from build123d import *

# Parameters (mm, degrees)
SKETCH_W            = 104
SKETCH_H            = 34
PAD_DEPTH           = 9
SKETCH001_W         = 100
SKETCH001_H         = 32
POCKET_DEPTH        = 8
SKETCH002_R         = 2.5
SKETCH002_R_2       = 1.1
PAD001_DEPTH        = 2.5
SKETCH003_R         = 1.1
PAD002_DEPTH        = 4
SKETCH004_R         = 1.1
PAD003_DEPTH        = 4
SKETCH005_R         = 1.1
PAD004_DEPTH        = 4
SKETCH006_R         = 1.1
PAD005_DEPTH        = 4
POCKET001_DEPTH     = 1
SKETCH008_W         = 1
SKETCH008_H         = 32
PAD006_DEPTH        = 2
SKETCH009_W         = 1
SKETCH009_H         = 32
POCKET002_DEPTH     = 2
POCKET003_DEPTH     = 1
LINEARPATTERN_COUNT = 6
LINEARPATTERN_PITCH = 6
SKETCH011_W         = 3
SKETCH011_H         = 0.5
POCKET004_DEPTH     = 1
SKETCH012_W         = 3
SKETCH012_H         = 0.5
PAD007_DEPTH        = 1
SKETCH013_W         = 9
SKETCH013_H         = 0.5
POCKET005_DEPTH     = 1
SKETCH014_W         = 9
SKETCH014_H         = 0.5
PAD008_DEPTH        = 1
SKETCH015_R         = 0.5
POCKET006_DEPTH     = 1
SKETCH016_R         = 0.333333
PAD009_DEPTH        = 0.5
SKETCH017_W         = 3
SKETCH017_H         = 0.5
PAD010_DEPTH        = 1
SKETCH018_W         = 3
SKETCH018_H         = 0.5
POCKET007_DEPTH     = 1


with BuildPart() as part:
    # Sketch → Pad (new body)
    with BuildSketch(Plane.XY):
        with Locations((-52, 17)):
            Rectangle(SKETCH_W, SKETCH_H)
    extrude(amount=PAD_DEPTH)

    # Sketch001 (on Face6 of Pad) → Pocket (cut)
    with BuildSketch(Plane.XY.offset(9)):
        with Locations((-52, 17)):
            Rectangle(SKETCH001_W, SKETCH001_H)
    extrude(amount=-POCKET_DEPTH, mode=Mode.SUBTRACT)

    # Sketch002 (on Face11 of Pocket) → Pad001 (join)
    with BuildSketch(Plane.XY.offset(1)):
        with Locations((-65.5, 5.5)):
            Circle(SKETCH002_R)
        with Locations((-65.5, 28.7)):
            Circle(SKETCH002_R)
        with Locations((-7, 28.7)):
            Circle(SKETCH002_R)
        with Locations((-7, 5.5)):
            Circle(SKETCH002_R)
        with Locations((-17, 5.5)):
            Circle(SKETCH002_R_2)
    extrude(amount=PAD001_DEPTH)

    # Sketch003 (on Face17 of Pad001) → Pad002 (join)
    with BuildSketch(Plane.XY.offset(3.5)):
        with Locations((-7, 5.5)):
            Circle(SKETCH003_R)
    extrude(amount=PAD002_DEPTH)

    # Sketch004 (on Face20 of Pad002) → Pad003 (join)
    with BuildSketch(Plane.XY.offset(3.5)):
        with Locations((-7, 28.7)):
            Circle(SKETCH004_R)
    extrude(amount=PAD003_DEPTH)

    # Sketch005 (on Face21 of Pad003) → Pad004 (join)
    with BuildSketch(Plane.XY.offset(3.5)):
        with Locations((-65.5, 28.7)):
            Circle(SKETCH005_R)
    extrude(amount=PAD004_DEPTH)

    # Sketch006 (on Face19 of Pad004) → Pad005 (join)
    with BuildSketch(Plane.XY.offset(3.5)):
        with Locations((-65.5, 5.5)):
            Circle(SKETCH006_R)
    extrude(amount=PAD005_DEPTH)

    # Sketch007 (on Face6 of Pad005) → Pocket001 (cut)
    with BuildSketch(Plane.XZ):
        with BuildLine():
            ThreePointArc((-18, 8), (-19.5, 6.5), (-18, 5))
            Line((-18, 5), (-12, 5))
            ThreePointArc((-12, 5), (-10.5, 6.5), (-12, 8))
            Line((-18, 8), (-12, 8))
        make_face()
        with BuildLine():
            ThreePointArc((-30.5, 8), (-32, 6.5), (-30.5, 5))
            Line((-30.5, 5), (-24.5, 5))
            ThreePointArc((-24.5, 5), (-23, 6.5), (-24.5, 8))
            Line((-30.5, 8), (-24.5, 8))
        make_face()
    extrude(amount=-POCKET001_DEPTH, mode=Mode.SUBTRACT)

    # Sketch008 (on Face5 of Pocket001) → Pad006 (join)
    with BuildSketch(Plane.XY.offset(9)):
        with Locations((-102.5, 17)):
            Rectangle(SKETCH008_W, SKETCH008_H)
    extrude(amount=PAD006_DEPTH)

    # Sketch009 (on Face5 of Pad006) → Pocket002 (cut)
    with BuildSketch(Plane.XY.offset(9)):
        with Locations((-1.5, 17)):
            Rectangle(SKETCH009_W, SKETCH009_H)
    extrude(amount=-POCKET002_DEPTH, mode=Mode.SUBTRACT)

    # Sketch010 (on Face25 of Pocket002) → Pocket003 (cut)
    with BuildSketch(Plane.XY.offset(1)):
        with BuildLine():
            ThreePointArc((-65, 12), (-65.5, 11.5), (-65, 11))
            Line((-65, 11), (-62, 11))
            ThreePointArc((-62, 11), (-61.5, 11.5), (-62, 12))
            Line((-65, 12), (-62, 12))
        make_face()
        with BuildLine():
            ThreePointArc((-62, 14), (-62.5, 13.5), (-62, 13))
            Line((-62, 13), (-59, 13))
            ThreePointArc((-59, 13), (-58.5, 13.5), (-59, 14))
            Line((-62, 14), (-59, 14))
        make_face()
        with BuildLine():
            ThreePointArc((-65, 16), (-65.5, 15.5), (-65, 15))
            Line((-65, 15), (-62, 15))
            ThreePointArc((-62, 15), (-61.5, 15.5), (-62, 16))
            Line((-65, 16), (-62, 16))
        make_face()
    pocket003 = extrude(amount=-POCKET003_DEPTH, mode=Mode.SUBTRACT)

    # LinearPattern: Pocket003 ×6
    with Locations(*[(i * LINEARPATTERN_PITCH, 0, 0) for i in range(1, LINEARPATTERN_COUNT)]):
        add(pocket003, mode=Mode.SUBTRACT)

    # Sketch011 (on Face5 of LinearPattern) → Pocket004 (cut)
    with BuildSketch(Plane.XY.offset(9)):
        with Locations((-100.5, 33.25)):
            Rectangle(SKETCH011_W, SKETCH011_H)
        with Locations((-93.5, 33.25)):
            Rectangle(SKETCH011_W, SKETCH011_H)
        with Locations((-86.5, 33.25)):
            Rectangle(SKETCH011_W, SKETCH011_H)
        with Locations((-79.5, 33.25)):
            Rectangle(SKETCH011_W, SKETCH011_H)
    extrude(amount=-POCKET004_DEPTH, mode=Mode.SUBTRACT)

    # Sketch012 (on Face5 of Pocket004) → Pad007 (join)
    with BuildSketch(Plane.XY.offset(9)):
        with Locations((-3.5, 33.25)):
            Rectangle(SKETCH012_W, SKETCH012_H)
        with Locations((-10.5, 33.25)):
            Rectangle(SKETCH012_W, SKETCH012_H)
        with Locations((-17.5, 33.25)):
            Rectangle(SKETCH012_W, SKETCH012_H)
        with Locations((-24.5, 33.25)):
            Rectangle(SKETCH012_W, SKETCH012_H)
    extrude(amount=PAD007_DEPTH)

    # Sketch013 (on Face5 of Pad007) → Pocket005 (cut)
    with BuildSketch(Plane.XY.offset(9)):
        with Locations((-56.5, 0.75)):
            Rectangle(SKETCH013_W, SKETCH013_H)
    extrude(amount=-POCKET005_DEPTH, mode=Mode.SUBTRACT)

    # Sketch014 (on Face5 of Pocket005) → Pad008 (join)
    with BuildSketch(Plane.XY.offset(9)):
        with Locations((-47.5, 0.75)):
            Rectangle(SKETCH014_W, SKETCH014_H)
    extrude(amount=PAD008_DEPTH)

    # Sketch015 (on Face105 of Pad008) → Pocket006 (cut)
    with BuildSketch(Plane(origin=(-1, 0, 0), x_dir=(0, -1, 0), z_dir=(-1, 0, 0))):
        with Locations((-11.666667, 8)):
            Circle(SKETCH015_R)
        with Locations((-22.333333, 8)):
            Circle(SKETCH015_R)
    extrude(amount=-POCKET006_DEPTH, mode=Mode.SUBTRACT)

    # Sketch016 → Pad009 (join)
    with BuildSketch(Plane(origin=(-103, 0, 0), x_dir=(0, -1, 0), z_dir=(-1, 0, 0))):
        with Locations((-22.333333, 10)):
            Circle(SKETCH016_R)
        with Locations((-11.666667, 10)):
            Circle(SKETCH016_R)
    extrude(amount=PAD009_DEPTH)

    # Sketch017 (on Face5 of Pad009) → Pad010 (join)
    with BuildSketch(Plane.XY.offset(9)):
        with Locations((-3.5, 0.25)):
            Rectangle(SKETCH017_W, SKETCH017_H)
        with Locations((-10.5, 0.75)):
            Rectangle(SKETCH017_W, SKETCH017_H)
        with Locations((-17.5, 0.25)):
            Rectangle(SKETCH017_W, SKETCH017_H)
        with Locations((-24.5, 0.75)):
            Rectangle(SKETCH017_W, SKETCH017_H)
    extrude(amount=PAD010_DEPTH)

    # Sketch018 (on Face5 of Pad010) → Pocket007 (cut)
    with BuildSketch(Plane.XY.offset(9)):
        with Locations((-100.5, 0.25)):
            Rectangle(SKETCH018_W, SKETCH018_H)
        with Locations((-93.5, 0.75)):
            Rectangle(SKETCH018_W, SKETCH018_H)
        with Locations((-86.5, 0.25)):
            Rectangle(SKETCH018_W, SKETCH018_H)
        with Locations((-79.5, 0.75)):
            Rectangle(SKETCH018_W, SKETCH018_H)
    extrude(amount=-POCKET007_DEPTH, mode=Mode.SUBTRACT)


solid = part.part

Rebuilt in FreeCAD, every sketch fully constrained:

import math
import FreeCAD as App
import Part
import Sketcher
Q = App.Units.Quantity


def add_polygon(sketch, points):
    """Adds a closed chain of lines whose ends are joined by coincident constraints."""
    first, n = sketch.GeometryCount, len(points)
    for a, b in zip(points, points[1:] + points[:1]):
        sketch.addGeometry(Part.LineSegment(App.Vector(*a, 0), App.Vector(*b, 0)), False)
    for i in range(n):
        sketch.addConstraint(Sketcher.Constraint("Coincident", first + i, 2, first + (i + 1) % n, 1))

doc = App.newDocument("Part")
body = doc.addObject("PartDesign::Body", "Body")

# Sketch on XY plane
sketch1 = body.newObject("Sketcher::SketchObject", "Sketch")
sketch1.AttachmentSupport = (doc.getObject("XY_Plane"), [""])
sketch1.MapMode = "FlatFace"
add_polygon(sketch1, [(-104, 34), (-104, 0), (0, 0), (0, 34)])  # lines 0-3
sketch1.addConstraint([
    Sketcher.Constraint("Vertical", 0),
    Sketcher.Constraint("Horizontal", 1),
    Sketcher.Constraint("Vertical", 2),
    Sketcher.Constraint("Horizontal", 3),
    Sketcher.Constraint("Coincident", 1, 2, -1, 1),
    Sketcher.Constraint("DistanceX", 1, 1, 1, 2, Q("104 mm")),
    Sketcher.Constraint("DistanceY", 0, 2, 0, 1, Q("34 mm")),
])
pad1 = body.newObject("PartDesign::Pad", "Pad")
pad1.Profile = sketch1
pad1.Length = 9

# Sketch on XY plane
sketch2 = body.newObject("Sketcher::SketchObject", "Sketch001")
sketch2.AttachmentSupport = (doc.getObject("XY_Plane"), [""])
sketch2.MapMode = "FlatFace"
sketch2.AttachmentOffset = App.Placement(App.Vector(0, 0, 9), App.Rotation())
add_polygon(sketch2, [(-102, 33), (-102, 1), (-2, 1), (-2, 33)])  # lines 0-3
sketch2.addConstraint([
    Sketcher.Constraint("Vertical", 0),
    Sketcher.Constraint("Horizontal", 1),
    Sketcher.Constraint("Vertical", 2),
    Sketcher.Constraint("Horizontal", 3),
    Sketcher.Constraint("DistanceX", 1, 1, 1, 2, Q("100 mm")),
    Sketcher.Constraint("DistanceY", 0, 2, 0, 1, Q("32 mm")),
    Sketcher.Constraint("DistanceX", 0, 2, -1, 1, Q("102 mm")),
    Sketcher.Constraint("DistanceY", -1, 1, 0, 2, Q("1 mm")),
])
pocket1 = body.newObject("PartDesign::Pocket", "Pocket")
pocket1.Profile = sketch2
pocket1.Length = 8

# Sketch on XY plane
sketch3 = body.newObject("Sketcher::SketchObject", "Sketch002")
sketch3.AttachmentSupport = (doc.getObject("XY_Plane"), [""])
sketch3.MapMode = "FlatFace"
sketch3.AttachmentOffset = App.Placement(App.Vector(0, 0, 1), App.Rotation())
sketch3.addGeometry([
    Part.Circle(App.Vector(-65.5, 5.5, 0), App.Vector(0, 0, 1), 2.5),  # 0
    Part.Circle(App.Vector(-65.5, 28.7, 0), App.Vector(0, 0, 1), 2.5),  # 1
    Part.Circle(App.Vector(-7, 28.7, 0), App.Vector(0, 0, 1), 2.5),  # 2
    Part.Circle(App.Vector(-7, 5.5, 0), App.Vector(0, 0, 1), 2.5),  # 3
    Part.Circle(App.Vector(-17, 5.5, 0), App.Vector(0, 0, 1), 1.1),  # 4
], False)
sketch3.addConstraint([
    Sketcher.Constraint("Equal", 0, 1),
    Sketcher.Constraint("Equal", 1, 2),
    Sketcher.Constraint("Equal", 2, 3),
    Sketcher.Constraint("Horizontal", 1, 3, 2, 3),
    Sketcher.Constraint("Horizontal", 0, 3, 3, 3),
    Sketcher.Constraint("Horizontal", 3, 3, 4, 3),
    Sketcher.Constraint("Vertical", 0, 3, 1, 3),
    Sketcher.Constraint("Vertical", 2, 3, 3, 3),
    Sketcher.Constraint("Diameter", 0, Q("5 mm")),
    Sketcher.Constraint("Diameter", 4, Q("2.2 mm")),
    Sketcher.Constraint("DistanceX", 2, 3, -1, 1, Q("7 mm")),
    Sketcher.Constraint("DistanceX", 4, 3, -1, 1, Q("17 mm")),
    Sketcher.Constraint("DistanceX", 0, 3, -1, 1, Q("65.5 mm")),
    Sketcher.Constraint("DistanceY", -1, 1, 0, 3, Q("5.5 mm")),
    Sketcher.Constraint("DistanceY", -1, 1, 1, 3, Q("28.7 mm")),
])
pad2 = body.newObject("PartDesign::Pad", "Pad001")
pad2.Profile = sketch3
pad2.Length = 2.5

# Sketch on XY plane
sketch4 = body.newObject("Sketcher::SketchObject", "Sketch003")
sketch4.AttachmentSupport = (doc.getObject("XY_Plane"), [""])
sketch4.MapMode = "FlatFace"
sketch4.AttachmentOffset = App.Placement(App.Vector(0, 0, 3.5), App.Rotation())
sketch4.addGeometry(Part.Circle(App.Vector(-7, 5.5, 0), App.Vector(0, 0, 1), 1.1), False)
sketch4.addConstraint([
    Sketcher.Constraint("Diameter", 0, Q("2.2 mm")),
    Sketcher.Constraint("DistanceX", 0, 3, -1, 1, Q("7 mm")),
    Sketcher.Constraint("DistanceY", -1, 1, 0, 3, Q("5.5 mm")),
])
pad3 = body.newObject("PartDesign::Pad", "Pad002")
pad3.Profile = sketch4
pad3.Length = 4

# Sketch on XY plane
sketch5 = body.newObject("Sketcher::SketchObject", "Sketch004")
sketch5.AttachmentSupport = (doc.getObject("XY_Plane"), [""])
sketch5.MapMode = "FlatFace"
sketch5.AttachmentOffset = App.Placement(App.Vector(0, 0, 3.5), App.Rotation())
sketch5.addGeometry(Part.Circle(App.Vector(-7, 28.7, 0), App.Vector(0, 0, 1), 1.1), False)
sketch5.addConstraint([
    Sketcher.Constraint("Diameter", 0, Q("2.2 mm")),
    Sketcher.Constraint("DistanceX", 0, 3, -1, 1, Q("7 mm")),
    Sketcher.Constraint("DistanceY", -1, 1, 0, 3, Q("28.7 mm")),
])
pad4 = body.newObject("PartDesign::Pad", "Pad003")
pad4.Profile = sketch5
pad4.Length = 4

# Sketch on XY plane
sketch6 = body.newObject("Sketcher::SketchObject", "Sketch005")
sketch6.AttachmentSupport = (doc.getObject("XY_Plane"), [""])
sketch6.MapMode = "FlatFace"
sketch6.AttachmentOffset = App.Placement(App.Vector(0, 0, 3.5), App.Rotation())
sketch6.addGeometry(Part.Circle(App.Vector(-65.5, 28.7, 0), App.Vector(0, 0, 1), 1.1), False)
sketch6.addConstraint([
    Sketcher.Constraint("Diameter", 0, Q("2.2 mm")),
    Sketcher.Constraint("DistanceX", 0, 3, -1, 1, Q("65.5 mm")),
    Sketcher.Constraint("DistanceY", -1, 1, 0, 3, Q("28.7 mm")),
])
pad5 = body.newObject("PartDesign::Pad", "Pad004")
pad5.Profile = sketch6
pad5.Length = 4

# Sketch on XY plane
sketch7 = body.newObject("Sketcher::SketchObject", "Sketch006")
sketch7.AttachmentSupport = (doc.getObject("XY_Plane"), [""])
sketch7.MapMode = "FlatFace"
sketch7.AttachmentOffset = App.Placement(App.Vector(0, 0, 3.5), App.Rotation())
sketch7.addGeometry(Part.Circle(App.Vector(-65.5, 5.5, 0), App.Vector(0, 0, 1), 1.1), False)
sketch7.addConstraint([
    Sketcher.Constraint("Diameter", 0, Q("2.2 mm")),
    Sketcher.Constraint("DistanceX", 0, 3, -1, 1, Q("65.5 mm")),
    Sketcher.Constraint("DistanceY", -1, 1, 0, 3, Q("5.5 mm")),
])
pad6 = body.newObject("PartDesign::Pad", "Pad005")
pad6.Profile = sketch7
pad6.Length = 4

# Sketch on XZ plane
sketch8 = body.newObject("Sketcher::SketchObject", "Sketch007")
sketch8.AttachmentSupport = (doc.getObject("XZ_Plane"), [""])
sketch8.MapMode = "FlatFace"
sketch8.addGeometry([
    Part.ArcOfCircle(Part.Circle(App.Vector(-18, 6.5, 0), App.Vector(0, 0, 1), 1.5), math.radians(90), math.radians(270)),  # 0
    Part.LineSegment(App.Vector(-18, 5, 0), App.Vector(-12, 5, 0)),  # 1
    Part.ArcOfCircle(Part.Circle(App.Vector(-12, 6.5, 0), App.Vector(0, 0, 1), 1.5), math.radians(-90), math.radians(90)),  # 2
    Part.LineSegment(App.Vector(-12, 8, 0), App.Vector(-18, 8, 0)),  # 3
    Part.ArcOfCircle(Part.Circle(App.Vector(-30.5, 6.5, 0), App.Vector(0, 0, 1), 1.5), math.radians(90), math.radians(270)),  # 4
    Part.LineSegment(App.Vector(-30.5, 5, 0), App.Vector(-24.5, 5, 0)),  # 5
    Part.ArcOfCircle(Part.Circle(App.Vector(-24.5, 6.5, 0), App.Vector(0, 0, 1), 1.5), math.radians(-90), math.radians(90)),  # 6
    Part.LineSegment(App.Vector(-24.5, 8, 0), App.Vector(-30.5, 8, 0)),  # 7
], False)
sketch8.addConstraint([
    Sketcher.Constraint("Tangent", 0, 2, 1, 1),
    Sketcher.Constraint("Tangent", 1, 2, 2, 1),
    Sketcher.Constraint("Tangent", 2, 2, 3, 1),
    Sketcher.Constraint("Tangent", 3, 2, 0, 1),
    Sketcher.Constraint("Tangent", 4, 2, 5, 1),
    Sketcher.Constraint("Tangent", 5, 2, 6, 1),
    Sketcher.Constraint("Tangent", 6, 2, 7, 1),
    Sketcher.Constraint("Tangent", 7, 2, 4, 1),
    Sketcher.Constraint("Horizontal", 1),
    Sketcher.Constraint("Horizontal", 3),
    Sketcher.Constraint("Horizontal", 5),
    Sketcher.Constraint("Horizontal", 7),
    Sketcher.Constraint("Equal", 2, 4),
    Sketcher.Constraint("Horizontal", 2, 3, 4, 3),
    Sketcher.Constraint("Equal", 3, 5),
    Sketcher.Constraint("Radius", 0, Q("1.5 mm")),
    Sketcher.Constraint("DistanceX", 1, 1, 1, 2, Q("6 mm")),
    Sketcher.Constraint("DistanceX", 0, 3, -1, 1, Q("18 mm")),
    Sketcher.Constraint("DistanceY", -1, 1, 0, 2, Q("5 mm")),
    Sketcher.Constraint("DistanceX", 4, 3, -1, 1, Q("30.5 mm")),
])
pocket2 = body.newObject("PartDesign::Pocket", "Pocket001")
pocket2.Profile = sketch8
pocket2.Length = 1

# Sketch on XY plane
sketch9 = body.newObject("Sketcher::SketchObject", "Sketch008")
sketch9.AttachmentSupport = (doc.getObject("XY_Plane"), [""])
sketch9.MapMode = "FlatFace"
sketch9.AttachmentOffset = App.Placement(App.Vector(0, 0, 9), App.Rotation())
add_polygon(sketch9, [(-103, 33), (-103, 1), (-102, 1), (-102, 33)])  # lines 0-3
sketch9.addConstraint([
    Sketcher.Constraint("Vertical", 0),
    Sketcher.Constraint("Horizontal", 1),
    Sketcher.Constraint("Vertical", 2),
    Sketcher.Constraint("Horizontal", 3),
    Sketcher.Constraint("DistanceX", 1, 1, 1, 2, Q("1 mm")),
    Sketcher.Constraint("DistanceY", 0, 2, 0, 1, Q("32 mm")),
    Sketcher.Constraint("DistanceX", 0, 2, -1, 1, Q("103 mm")),
    Sketcher.Constraint("DistanceY", -1, 1, 0, 2, Q("1 mm")),
])
pad7 = body.newObject("PartDesign::Pad", "Pad006")
pad7.Profile = sketch9
pad7.Length = 2

# Sketch on XY plane
sketch10 = body.newObject("Sketcher::SketchObject", "Sketch009")
sketch10.AttachmentSupport = (doc.getObject("XY_Plane"), [""])
sketch10.MapMode = "FlatFace"
sketch10.AttachmentOffset = App.Placement(App.Vector(0, 0, 9), App.Rotation())
add_polygon(sketch10, [(-2, 33), (-2, 1), (-1, 1), (-1, 33)])  # lines 0-3
sketch10.addConstraint([
    Sketcher.Constraint("Vertical", 0),
    Sketcher.Constraint("Horizontal", 1),
    Sketcher.Constraint("Vertical", 2),
    Sketcher.Constraint("Horizontal", 3),
    Sketcher.Constraint("DistanceX", 1, 1, 1, 2, Q("1 mm")),
    Sketcher.Constraint("DistanceY", 0, 2, 0, 1, Q("32 mm")),
    Sketcher.Constraint("DistanceX", 0, 2, -1, 1, Q("2 mm")),
    Sketcher.Constraint("DistanceY", -1, 1, 0, 2, Q("1 mm")),
])
pocket3 = body.newObject("PartDesign::Pocket", "Pocket002")
pocket3.Profile = sketch10
pocket3.Length = 2

# Sketch on XY plane
sketch11 = body.newObject("Sketcher::SketchObject", "Sketch010")
sketch11.AttachmentSupport = (doc.getObject("XY_Plane"), [""])
sketch11.MapMode = "FlatFace"
sketch11.AttachmentOffset = App.Placement(App.Vector(0, 0, 1), App.Rotation())
sketch11.addGeometry([
    Part.ArcOfCircle(Part.Circle(App.Vector(-65, 11.5, 0), App.Vector(0, 0, 1), 0.5), math.radians(90), math.radians(270)),  # 0
    Part.LineSegment(App.Vector(-65, 11, 0), App.Vector(-62, 11, 0)),  # 1
    Part.ArcOfCircle(Part.Circle(App.Vector(-62, 11.5, 0), App.Vector(0, 0, 1), 0.5), math.radians(-90), math.radians(90)),  # 2
    Part.LineSegment(App.Vector(-62, 12, 0), App.Vector(-65, 12, 0)),  # 3
    Part.ArcOfCircle(Part.Circle(App.Vector(-62, 13.5, 0), App.Vector(0, 0, 1), 0.5), math.radians(90), math.radians(270)),  # 4
    Part.LineSegment(App.Vector(-62, 13, 0), App.Vector(-59, 13, 0)),  # 5
    Part.ArcOfCircle(Part.Circle(App.Vector(-59, 13.5, 0), App.Vector(0, 0, 1), 0.5), math.radians(-90), math.radians(90)),  # 6
    Part.LineSegment(App.Vector(-59, 14, 0), App.Vector(-62, 14, 0)),  # 7
    Part.ArcOfCircle(Part.Circle(App.Vector(-65, 15.5, 0), App.Vector(0, 0, 1), 0.5), math.radians(90), math.radians(270)),  # 8
    Part.LineSegment(App.Vector(-65, 15, 0), App.Vector(-62, 15, 0)),  # 9
    Part.ArcOfCircle(Part.Circle(App.Vector(-62, 15.5, 0), App.Vector(0, 0, 1), 0.5), math.radians(-90), math.radians(90)),  # 10
    Part.LineSegment(App.Vector(-62, 16, 0), App.Vector(-65, 16, 0)),  # 11
], False)
sketch11.addConstraint([
    Sketcher.Constraint("Tangent", 0, 2, 1, 1),
    Sketcher.Constraint("Tangent", 1, 2, 2, 1),
    Sketcher.Constraint("Tangent", 2, 2, 3, 1),
    Sketcher.Constraint("Tangent", 3, 2, 0, 1),
    Sketcher.Constraint("Tangent", 4, 2, 5, 1),
    Sketcher.Constraint("Tangent", 5, 2, 6, 1),
    Sketcher.Constraint("Tangent", 6, 2, 7, 1),
    Sketcher.Constraint("Tangent", 7, 2, 4, 1),
    Sketcher.Constraint("Tangent", 8, 2, 9, 1),
    Sketcher.Constraint("Tangent", 9, 2, 10, 1),
    Sketcher.Constraint("Tangent", 10, 2, 11, 1),
    Sketcher.Constraint("Tangent", 11, 2, 8, 1),
    Sketcher.Constraint("Horizontal", 1),
    Sketcher.Constraint("Horizontal", 3),
    Sketcher.Constraint("Horizontal", 5),
    Sketcher.Constraint("Horizontal", 7),
    Sketcher.Constraint("Horizontal", 9),
    Sketcher.Constraint("Horizontal", 11),
    Sketcher.Constraint("Equal", 2, 4),
    Sketcher.Constraint("Equal", 6, 8),
    Sketcher.Constraint("Vertical", 2, 3, 4, 3),
    Sketcher.Constraint("Vertical", 0, 3, 8, 3),
    Sketcher.Constraint("Vertical", 4, 3, 10, 3),
    Sketcher.Constraint("Equal", 3, 5),
    Sketcher.Constraint("Radius", 0, Q("0.5 mm")),
    Sketcher.Constraint("DistanceX", 1, 1, 1, 2, Q("3 mm")),
    Sketcher.Constraint("DistanceX", 0, 3, -1, 1, Q("65 mm")),
    Sketcher.Constraint("DistanceY", -1, 1, 0, 2, Q("11 mm")),
    Sketcher.Constraint("DistanceY", -1, 1, 4, 2, Q("13 mm")),
    Sketcher.Constraint("DistanceY", -1, 1, 8, 2, Q("15 mm")),
])
pocket4 = body.newObject("PartDesign::Pocket", "Pocket003")
pocket4.Profile = sketch11
pocket4.Length = 1
doc.recompute()

linearpattern = body.newObject("PartDesign::LinearPattern", "LinearPattern")
linearpattern.Originals = [pocket4]
linearpattern.Direction = (doc.getObject("X_Axis"), [""])
linearpattern.Mode = "offset"
linearpattern.Offset = 6
linearpattern.Occurrences = 6
body.Tip = linearpattern

# Sketch on XY plane
sketch12 = body.newObject("Sketcher::SketchObject", "Sketch011")
sketch12.AttachmentSupport = (doc.getObject("XY_Plane"), [""])
sketch12.MapMode = "FlatFace"
sketch12.AttachmentOffset = App.Placement(App.Vector(0, 0, 9), App.Rotation())
add_polygon(sketch12, [(-102, 33.5), (-102, 33), (-99, 33), (-99, 33.5)])  # lines 0-3
add_polygon(sketch12, [(-95, 33.5), (-95, 33), (-92, 33), (-92, 33.5)])  # lines 4-7
add_polygon(sketch12, [(-88, 33.5), (-88, 33), (-85, 33), (-85, 33.5)])  # lines 8-11
add_polygon(sketch12, [(-81, 33.5), (-81, 33), (-78, 33), (-78, 33.5)])  # lines 12-15
sketch12.addConstraint([
    Sketcher.Constraint("Vertical", 0),
    Sketcher.Constraint("Horizontal", 1),
    Sketcher.Constraint("Vertical", 2),
    Sketcher.Constraint("Horizontal", 3),
    Sketcher.Constraint("Vertical", 4),
    Sketcher.Constraint("Horizontal", 5),
    Sketcher.Constraint("Vertical", 6),
    Sketcher.Constraint("Horizontal", 7),
    Sketcher.Constraint("Vertical", 8),
    Sketcher.Constraint("Horizontal", 9),
    Sketcher.Constraint("Vertical", 10),
    Sketcher.Constraint("Horizontal", 11),
    Sketcher.Constraint("Vertical", 12),
    Sketcher.Constraint("Horizontal", 13),
    Sketcher.Constraint("Vertical", 14),
    Sketcher.Constraint("Horizontal", 15),
    Sketcher.Constraint("Horizontal", 1, 2, 4, 2),
    Sketcher.Constraint("Horizontal", 3, 2, 6, 2),
    Sketcher.Constraint("Horizontal", 5, 2, 8, 2),
    Sketcher.Constraint("Horizontal", 7, 2, 10, 2),
    Sketcher.Constraint("Horizontal", 9, 2, 12, 2),
    Sketcher.Constraint("Horizontal", 11, 2, 14, 2),
    Sketcher.Constraint("Equal", 3, 5),
    Sketcher.Constraint("Equal", 7, 9),
    Sketcher.Constraint("Equal", 11, 13),
    Sketcher.Constraint("DistanceX", 1, 1, 1, 2, Q("3 mm")),
    Sketcher.Constraint("DistanceY", 0, 2, 0, 1, Q("0.5 mm")),
    Sketcher.Constraint("DistanceX", 0, 2, -1, 1, Q("102 mm")),
    Sketcher.Constraint("DistanceY", -1, 1, 0, 2, Q("33 mm")),
    Sketcher.Constraint("DistanceX", 4, 2, -1, 1, Q("95 mm")),
    Sketcher.Constraint("DistanceX", 8, 2, -1, 1, Q("88 mm")),
    Sketcher.Constraint("DistanceX", 12, 2, -1, 1, Q("81 mm")),
])
pocket5 = body.newObject("PartDesign::Pocket", "Pocket004")
pocket5.Profile = sketch12
pocket5.Length = 1

# Sketch on XY plane
sketch13 = body.newObject("Sketcher::SketchObject", "Sketch012")
sketch13.AttachmentSupport = (doc.getObject("XY_Plane"), [""])
sketch13.MapMode = "FlatFace"
sketch13.AttachmentOffset = App.Placement(App.Vector(0, 0, 9), App.Rotation())
add_polygon(sketch13, [(-5, 33.5), (-5, 33), (-2, 33), (-2, 33.5)])  # lines 0-3
add_polygon(sketch13, [(-12, 33.5), (-12, 33), (-9, 33), (-9, 33.5)])  # lines 4-7
add_polygon(sketch13, [(-19, 33.5), (-19, 33), (-16, 33), (-16, 33.5)])  # lines 8-11
add_polygon(sketch13, [(-26, 33.5), (-26, 33), (-23, 33), (-23, 33.5)])  # lines 12-15
sketch13.addConstraint([
    Sketcher.Constraint("Vertical", 0),
    Sketcher.Constraint("Horizontal", 1),
    Sketcher.Constraint("Vertical", 2),
    Sketcher.Constraint("Horizontal", 3),
    Sketcher.Constraint("Vertical", 4),
    Sketcher.Constraint("Horizontal", 5),
    Sketcher.Constraint("Vertical", 6),
    Sketcher.Constraint("Horizontal", 7),
    Sketcher.Constraint("Vertical", 8),
    Sketcher.Constraint("Horizontal", 9),
    Sketcher.Constraint("Vertical", 10),
    Sketcher.Constraint("Horizontal", 11),
    Sketcher.Constraint("Vertical", 12),
    Sketcher.Constraint("Horizontal", 13),
    Sketcher.Constraint("Vertical", 14),
    Sketcher.Constraint("Horizontal", 15),
    Sketcher.Constraint("Horizontal", 1, 2, 4, 2),
    Sketcher.Constraint("Horizontal", 3, 2, 6, 2),
    Sketcher.Constraint("Horizontal", 5, 2, 8, 2),
    Sketcher.Constraint("Horizontal", 7, 2, 10, 2),
    Sketcher.Constraint("Horizontal", 9, 2, 12, 2),
    Sketcher.Constraint("Horizontal", 11, 2, 14, 2),
    Sketcher.Constraint("Equal", 3, 5),
    Sketcher.Constraint("Equal", 7, 9),
    Sketcher.Constraint("Equal", 11, 13),
    Sketcher.Constraint("DistanceX", 1, 1, 1, 2, Q("3 mm")),
    Sketcher.Constraint("DistanceY", 0, 2, 0, 1, Q("0.5 mm")),
    Sketcher.Constraint("DistanceX", 0, 2, -1, 1, Q("5 mm")),
    Sketcher.Constraint("DistanceY", -1, 1, 0, 2, Q("33 mm")),
    Sketcher.Constraint("DistanceX", 4, 2, -1, 1, Q("12 mm")),
    Sketcher.Constraint("DistanceX", 8, 2, -1, 1, Q("19 mm")),
    Sketcher.Constraint("DistanceX", 12, 2, -1, 1, Q("26 mm")),
])
pad8 = body.newObject("PartDesign::Pad", "Pad007")
pad8.Profile = sketch13
pad8.Length = 1

# Sketch on XY plane
sketch14 = body.newObject("Sketcher::SketchObject", "Sketch013")
sketch14.AttachmentSupport = (doc.getObject("XY_Plane"), [""])
sketch14.MapMode = "FlatFace"
sketch14.AttachmentOffset = App.Placement(App.Vector(0, 0, 9), App.Rotation())
add_polygon(sketch14, [(-61, 1), (-61, 0.5), (-52, 0.5), (-52, 1)])  # lines 0-3
sketch14.addConstraint([
    Sketcher.Constraint("Vertical", 0),
    Sketcher.Constraint("Horizontal", 1),
    Sketcher.Constraint("Vertical", 2),
    Sketcher.Constraint("Horizontal", 3),
    Sketcher.Constraint("DistanceX", 1, 1, 1, 2, Q("9 mm")),
    Sketcher.Constraint("DistanceY", 0, 2, 0, 1, Q("0.5 mm")),
    Sketcher.Constraint("DistanceX", 0, 2, -1, 1, Q("61 mm")),
    Sketcher.Constraint("DistanceY", -1, 1, 2, 2, Q("1 mm")),
])
pocket6 = body.newObject("PartDesign::Pocket", "Pocket005")
pocket6.Profile = sketch14
pocket6.Length = 1

# Sketch on XY plane
sketch15 = body.newObject("Sketcher::SketchObject", "Sketch014")
sketch15.AttachmentSupport = (doc.getObject("XY_Plane"), [""])
sketch15.MapMode = "FlatFace"
sketch15.AttachmentOffset = App.Placement(App.Vector(0, 0, 9), App.Rotation())
add_polygon(sketch15, [(-52, 1), (-52, 0.5), (-43, 0.5), (-43, 1)])  # lines 0-3
sketch15.addConstraint([
    Sketcher.Constraint("Vertical", 0),
    Sketcher.Constraint("Horizontal", 1),
    Sketcher.Constraint("Vertical", 2),
    Sketcher.Constraint("Horizontal", 3),
    Sketcher.Constraint("DistanceX", 1, 1, 1, 2, Q("9 mm")),
    Sketcher.Constraint("DistanceY", 0, 2, 0, 1, Q("0.5 mm")),
    Sketcher.Constraint("DistanceX", 0, 2, -1, 1, Q("52 mm")),
    Sketcher.Constraint("DistanceY", -1, 1, 2, 2, Q("1 mm")),
])
pad9 = body.newObject("PartDesign::Pad", "Pad008")
pad9.Profile = sketch15
pad9.Length = 1

# Sketch on YZ plane
sketch16 = body.newObject("Sketcher::SketchObject", "Sketch015")
sketch16.AttachmentSupport = (doc.getObject("YZ_Plane"), [""])
sketch16.MapMode = "FlatFace"
sketch16.AttachmentOffset = App.Placement(App.Vector(0, 0, -1), App.Rotation())
sketch16.addGeometry([
    Part.Circle(App.Vector(11.7, 8, 0), App.Vector(0, 0, 1), 0.5),
    Part.Circle(App.Vector(22.3, 8, 0), App.Vector(0, 0, 1), 0.5),
], False)
sketch16.addConstraint([
    Sketcher.Constraint("Equal", 0, 1),
    Sketcher.Constraint("Horizontal", 0, 3, 1, 3),
    Sketcher.Constraint("Diameter", 0, Q("1 mm")),
    Sketcher.Constraint("DistanceY", -1, 1, 0, 3, Q("8 mm")),
    Sketcher.Constraint("DistanceX", -1, 1, 0, 3, Q("11.666667 mm")),
    Sketcher.Constraint("DistanceX", -1, 1, 1, 3, Q("22.333333 mm")),
])
pocket7 = body.newObject("PartDesign::Pocket", "Pocket006")
pocket7.Profile = sketch16
pocket7.Length = 1
pocket7.Reversed = True

# Sketch on YZ plane
sketch17 = body.newObject("Sketcher::SketchObject", "Sketch016")
sketch17.AttachmentSupport = (doc.getObject("YZ_Plane"), [""])
sketch17.MapMode = "FlatFace"
sketch17.AttachmentOffset = App.Placement(App.Vector(0, 0, -103), App.Rotation())
sketch17.addGeometry([
    Part.Circle(App.Vector(22.33, 10, 0), App.Vector(0, 0, 1), 0.33),
    Part.Circle(App.Vector(11.67, 10, 0), App.Vector(0, 0, 1), 0.33),
], False)
sketch17.addConstraint([
    Sketcher.Constraint("Equal", 0, 1),
    Sketcher.Constraint("Horizontal", 0, 3, 1, 3),
    Sketcher.Constraint("DistanceY", -1, 1, 0, 3, Q("10 mm")),
    Sketcher.Constraint("Diameter", 0, Q("0.666666 mm")),
    Sketcher.Constraint("DistanceX", -1, 1, 0, 3, Q("22.333333 mm")),
    Sketcher.Constraint("DistanceX", -1, 1, 1, 3, Q("11.666667 mm")),
])
pad10 = body.newObject("PartDesign::Pad", "Pad009")
pad10.Profile = sketch17
pad10.Length = 0.5
pad10.Reversed = True

# Sketch on XY plane
sketch18 = body.newObject("Sketcher::SketchObject", "Sketch017")
sketch18.AttachmentSupport = (doc.getObject("XY_Plane"), [""])
sketch18.MapMode = "FlatFace"
sketch18.AttachmentOffset = App.Placement(App.Vector(0, 0, 9), App.Rotation())
add_polygon(sketch18, [(-5, 0.5), (-5, 0), (-2, 0), (-2, 0.5)])  # lines 0-3
add_polygon(sketch18, [(-12, 1), (-12, 0.5), (-9, 0.5), (-9, 1)])  # lines 4-7
add_polygon(sketch18, [(-19, 0.5), (-19, 0), (-16, 0), (-16, 0.5)])  # lines 8-11
add_polygon(sketch18, [(-26, 1), (-26, 0.5), (-23, 0.5), (-23, 1)])  # lines 12-15
sketch18.addConstraint([
    Sketcher.Constraint("Vertical", 0),
    Sketcher.Constraint("Horizontal", 1),
    Sketcher.Constraint("Vertical", 2),
    Sketcher.Constraint("Horizontal", 3),
    Sketcher.Constraint("Vertical", 4),
    Sketcher.Constraint("Horizontal", 5),
    Sketcher.Constraint("Vertical", 6),
    Sketcher.Constraint("Horizontal", 7),
    Sketcher.Constraint("Vertical", 8),
    Sketcher.Constraint("Horizontal", 9),
    Sketcher.Constraint("Vertical", 10),
    Sketcher.Constraint("Horizontal", 11),
    Sketcher.Constraint("Vertical", 12),
    Sketcher.Constraint("Horizontal", 13),
    Sketcher.Constraint("Vertical", 14),
    Sketcher.Constraint("Horizontal", 15),
    Sketcher.Constraint("PointOnObject", 0, 2, -1),
    Sketcher.Constraint("PointOnObject", 8, 2, -1),
    Sketcher.Constraint("Horizontal", 3, 2, 4, 2),
    Sketcher.Constraint("Horizontal", 5, 2, 10, 2),
    Sketcher.Constraint("Horizontal", 11, 2, 12, 2),
    Sketcher.Constraint("Horizontal", 7, 2, 14, 2),
    Sketcher.Constraint("Equal", 3, 5),
    Sketcher.Constraint("Equal", 7, 9),
    Sketcher.Constraint("Equal", 11, 13),
    Sketcher.Constraint("Equal", 2, 4),
    Sketcher.Constraint("DistanceX", 1, 1, 1, 2, Q("3 mm")),
    Sketcher.Constraint("DistanceY", 0, 2, 0, 1, Q("0.5 mm")),
    Sketcher.Constraint("DistanceX", 0, 2, -1, 1, Q("5 mm")),
    Sketcher.Constraint("DistanceX", 4, 2, -1, 1, Q("12 mm")),
    Sketcher.Constraint("DistanceX", 8, 2, -1, 1, Q("19 mm")),
    Sketcher.Constraint("DistanceX", 12, 2, -1, 1, Q("26 mm")),
])
pad11 = body.newObject("PartDesign::Pad", "Pad010")
pad11.Profile = sketch18
pad11.Length = 1

# Sketch on XY plane
sketch19 = body.newObject("Sketcher::SketchObject", "Sketch018")
sketch19.AttachmentSupport = (doc.getObject("XY_Plane"), [""])
sketch19.MapMode = "FlatFace"
sketch19.AttachmentOffset = App.Placement(App.Vector(0, 0, 9), App.Rotation())
add_polygon(sketch19, [(-102, 0.5), (-102, 0), (-99, 0), (-99, 0.5)])  # lines 0-3
add_polygon(sketch19, [(-95, 1), (-95, 0.5), (-92, 0.5), (-92, 1)])  # lines 4-7
add_polygon(sketch19, [(-88, 0.5), (-88, 0), (-85, 0), (-85, 0.5)])  # lines 8-11
add_polygon(sketch19, [(-81, 1), (-81, 0.5), (-78, 0.5), (-78, 1)])  # lines 12-15
sketch19.addConstraint([
    Sketcher.Constraint("Vertical", 0),
    Sketcher.Constraint("Horizontal", 1),
    Sketcher.Constraint("Vertical", 2),
    Sketcher.Constraint("Horizontal", 3),
    Sketcher.Constraint("Vertical", 4),
    Sketcher.Constraint("Horizontal", 5),
    Sketcher.Constraint("Vertical", 6),
    Sketcher.Constraint("Horizontal", 7),
    Sketcher.Constraint("Vertical", 8),
    Sketcher.Constraint("Horizontal", 9),
    Sketcher.Constraint("Vertical", 10),
    Sketcher.Constraint("Horizontal", 11),
    Sketcher.Constraint("Vertical", 12),
    Sketcher.Constraint("Horizontal", 13),
    Sketcher.Constraint("Vertical", 14),
    Sketcher.Constraint("Horizontal", 15),
    Sketcher.Constraint("PointOnObject", 0, 2, -1),
    Sketcher.Constraint("PointOnObject", 8, 2, -1),
    Sketcher.Constraint("Horizontal", 3, 2, 4, 2),
    Sketcher.Constraint("Horizontal", 5, 2, 10, 2),
    Sketcher.Constraint("Horizontal", 11, 2, 12, 2),
    Sketcher.Constraint("Horizontal", 7, 2, 14, 2),
    Sketcher.Constraint("Equal", 3, 5),
    Sketcher.Constraint("Equal", 7, 9),
    Sketcher.Constraint("Equal", 11, 13),
    Sketcher.Constraint("Equal", 2, 4),
    Sketcher.Constraint("DistanceX", 1, 1, 1, 2, Q("3 mm")),
    Sketcher.Constraint("DistanceY", 0, 2, 0, 1, Q("0.5 mm")),
    Sketcher.Constraint("DistanceX", 0, 2, -1, 1, Q("102 mm")),
    Sketcher.Constraint("DistanceX", 4, 2, -1, 1, Q("95 mm")),
    Sketcher.Constraint("DistanceX", 8, 2, -1, 1, Q("88 mm")),
    Sketcher.Constraint("DistanceX", 12, 2, -1, 1, Q("81 mm")),
])
pocket8 = body.newObject("PartDesign::Pocket", "Pocket007")
pocket8.Profile = sketch19
pocket8.Length = 1

doc.recompute()
